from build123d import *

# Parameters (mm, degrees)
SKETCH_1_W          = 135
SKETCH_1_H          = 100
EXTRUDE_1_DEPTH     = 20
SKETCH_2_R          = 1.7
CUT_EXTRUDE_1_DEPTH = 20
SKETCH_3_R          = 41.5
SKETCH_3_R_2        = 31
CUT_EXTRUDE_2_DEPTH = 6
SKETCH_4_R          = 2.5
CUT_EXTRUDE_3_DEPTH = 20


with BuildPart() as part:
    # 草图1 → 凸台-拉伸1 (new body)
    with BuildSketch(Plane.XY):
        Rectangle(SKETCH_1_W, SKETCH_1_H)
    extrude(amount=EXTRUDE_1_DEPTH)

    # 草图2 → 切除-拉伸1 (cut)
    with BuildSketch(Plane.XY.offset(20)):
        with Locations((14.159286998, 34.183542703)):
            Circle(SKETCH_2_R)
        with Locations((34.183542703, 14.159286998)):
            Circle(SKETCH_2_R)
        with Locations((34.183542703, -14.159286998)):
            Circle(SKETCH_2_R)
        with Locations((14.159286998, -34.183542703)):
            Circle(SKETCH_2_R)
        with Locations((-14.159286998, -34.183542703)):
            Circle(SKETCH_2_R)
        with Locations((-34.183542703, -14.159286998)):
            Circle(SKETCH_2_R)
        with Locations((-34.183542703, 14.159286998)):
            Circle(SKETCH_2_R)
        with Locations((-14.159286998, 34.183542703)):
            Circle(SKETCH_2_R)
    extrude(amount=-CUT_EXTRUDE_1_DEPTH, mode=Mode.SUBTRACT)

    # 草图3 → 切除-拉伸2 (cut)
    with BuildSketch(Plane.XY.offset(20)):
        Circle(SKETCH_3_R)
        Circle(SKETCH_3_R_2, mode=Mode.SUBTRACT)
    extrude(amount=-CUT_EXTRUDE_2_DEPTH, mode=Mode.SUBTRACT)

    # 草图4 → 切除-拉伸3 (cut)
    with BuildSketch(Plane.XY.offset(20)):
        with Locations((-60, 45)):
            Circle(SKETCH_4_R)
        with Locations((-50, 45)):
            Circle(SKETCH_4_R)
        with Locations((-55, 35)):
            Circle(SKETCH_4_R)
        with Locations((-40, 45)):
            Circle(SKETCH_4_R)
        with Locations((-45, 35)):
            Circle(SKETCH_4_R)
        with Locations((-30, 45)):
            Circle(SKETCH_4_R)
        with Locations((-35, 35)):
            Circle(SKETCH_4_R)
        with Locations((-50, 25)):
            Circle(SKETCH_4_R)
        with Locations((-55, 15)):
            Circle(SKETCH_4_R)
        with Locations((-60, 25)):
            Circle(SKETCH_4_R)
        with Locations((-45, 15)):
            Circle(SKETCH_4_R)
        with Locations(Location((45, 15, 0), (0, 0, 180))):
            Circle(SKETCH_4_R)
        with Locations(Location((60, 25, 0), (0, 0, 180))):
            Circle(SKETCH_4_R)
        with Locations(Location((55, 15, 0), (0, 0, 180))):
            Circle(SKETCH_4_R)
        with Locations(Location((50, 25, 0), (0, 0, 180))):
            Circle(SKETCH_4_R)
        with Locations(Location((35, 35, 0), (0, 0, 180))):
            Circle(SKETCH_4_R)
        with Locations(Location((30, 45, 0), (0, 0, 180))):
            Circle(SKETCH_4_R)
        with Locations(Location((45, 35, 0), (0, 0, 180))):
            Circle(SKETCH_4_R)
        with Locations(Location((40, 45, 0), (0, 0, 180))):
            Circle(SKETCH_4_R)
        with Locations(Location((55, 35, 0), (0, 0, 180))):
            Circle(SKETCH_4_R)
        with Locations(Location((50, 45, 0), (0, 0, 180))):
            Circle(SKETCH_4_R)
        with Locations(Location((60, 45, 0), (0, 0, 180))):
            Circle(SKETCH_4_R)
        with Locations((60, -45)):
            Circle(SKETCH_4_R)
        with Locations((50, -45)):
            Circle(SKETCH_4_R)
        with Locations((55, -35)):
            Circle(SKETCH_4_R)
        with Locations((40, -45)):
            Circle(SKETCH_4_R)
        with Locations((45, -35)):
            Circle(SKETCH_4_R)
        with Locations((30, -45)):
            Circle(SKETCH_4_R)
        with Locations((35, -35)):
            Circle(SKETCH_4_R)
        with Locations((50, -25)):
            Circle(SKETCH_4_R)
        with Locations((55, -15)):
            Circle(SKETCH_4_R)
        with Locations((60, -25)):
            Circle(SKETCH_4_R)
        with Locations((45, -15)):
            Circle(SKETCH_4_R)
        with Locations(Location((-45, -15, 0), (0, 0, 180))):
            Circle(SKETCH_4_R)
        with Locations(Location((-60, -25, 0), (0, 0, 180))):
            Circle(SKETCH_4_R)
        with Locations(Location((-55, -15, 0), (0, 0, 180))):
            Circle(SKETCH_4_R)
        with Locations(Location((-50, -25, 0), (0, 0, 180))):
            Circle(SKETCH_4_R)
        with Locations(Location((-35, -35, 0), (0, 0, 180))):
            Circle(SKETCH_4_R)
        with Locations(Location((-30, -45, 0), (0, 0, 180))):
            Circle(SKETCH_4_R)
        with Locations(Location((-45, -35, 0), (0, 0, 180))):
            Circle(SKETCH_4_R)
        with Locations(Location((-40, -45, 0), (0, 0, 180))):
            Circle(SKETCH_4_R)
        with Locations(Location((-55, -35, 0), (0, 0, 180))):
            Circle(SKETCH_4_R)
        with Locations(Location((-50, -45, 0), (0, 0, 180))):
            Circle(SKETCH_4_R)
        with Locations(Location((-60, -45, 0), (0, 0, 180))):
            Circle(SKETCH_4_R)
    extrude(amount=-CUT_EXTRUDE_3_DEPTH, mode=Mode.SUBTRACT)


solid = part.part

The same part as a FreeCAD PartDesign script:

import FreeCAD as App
import Part
import Sketcher
Q = App.Units.Quantity

doc = App.newDocument("Part")
body = doc.addObject("PartDesign::Body", "Body")

sketch1 = body.newObject("Sketcher::SketchObject", "Sketch")
sketch1.AttachmentSupport = (doc.getObject("XY_Plane"), [""])
sketch1.MapMode = "FlatFace"
sketch1.addGeometry([
    Part.LineSegment(App.Vector(-67.5, 50, 0), App.Vector(-67.5, -50, 0)),
    Part.LineSegment(App.Vector(-67.5, -50, 0), App.Vector(67.5, -50, 0)),
    Part.LineSegment(App.Vector(67.5, -50, 0), App.Vector(67.5, 50, 0)),
    Part.LineSegment(App.Vector(67.5, 50, 0), App.Vector(-67.5, 50, 0)),
], False)
sketch1.addConstraint([
    Sketcher.Constraint("Coincident", 0, 2, 1, 1),
    Sketcher.Constraint("Coincident", 1, 2, 2, 1),
    Sketcher.Constraint("Coincident", 2, 2, 3, 1),
    Sketcher.Constraint("Coincident", 3, 2, 0, 1),
    Sketcher.Constraint("Vertical", 0),
    Sketcher.Constraint("Horizontal", 1),
    Sketcher.Constraint("Vertical", 2),
    Sketcher.Constraint("Horizontal", 3),
    Sketcher.Constraint("Symmetric", 0, 2, 2, 2, -1, 1),
    Sketcher.Constraint("DistanceX", 1, 1, 1, 2, Q("135 mm")),
    Sketcher.Constraint("DistanceY", 0, 2, 0, 1, Q("100 mm")),
])
pad1 = body.newObject("PartDesign::Pad", "Pad")
pad1.Profile = sketch1
pad1.Length = 20

sketch2 = body.newObject("Sketcher::SketchObject", "Sketch001")
sketch2.AttachmentSupport = (doc.getObject("XY_Plane"), [""])
sketch2.MapMode = "FlatFace"
sketch2.AttachmentOffset = App.Placement(App.Vector(0, 0, 20), App.Rotation())
sketch2.addGeometry([
    Part.Circle(App.Vector(14.159287, 34.183543, 0), App.Vector(0, 0, 1), 1.7),
    Part.Circle(App.Vector(34.183543, 14.159287, 0), App.Vector(0, 0, 1), 1.7),
    Part.Circle(App.Vector(34.183543, -14.159287, 0), App.Vector(0, 0, 1), 1.7),
    Part.Circle(App.Vector(14.159287, -34.183543, 0), App.Vector(0, 0, 1), 1.7),
    Part.Circle(App.Vector(-14.159287, -34.183543, 0), App.Vector(0, 0, 1), 1.7),
    Part.Circle(App.Vector(-34.183543, -14.159287, 0), App.Vector(0, 0, 1), 1.7),
    Part.Circle(App.Vector(-34.183543, 14.159287, 0), App.Vector(0, 0, 1), 1.7),
    Part.Circle(App.Vector(-14.159287, 34.183543, 0), App.Vector(0, 0, 1), 1.7),
], False)
sketch2.addConstraint([
    Sketcher.Constraint("Equal", 0, 1),
    Sketcher.Constraint("Equal", 1, 2),
    Sketcher.Constraint("Equal", 2, 3),
    Sketcher.Constraint("Equal", 3, 4),
    Sketcher.Constraint("Equal", 4, 5),
    Sketcher.Constraint("Equal", 5, 6),
    Sketcher.Constraint("Equal", 6, 7),
    Sketcher.Constraint("Symmetric", 0, 3, 4, 3, -1, 1),
    Sketcher.Constraint("Symmetric", 1, 3, 5, 3, -1, 1),
    Sketcher.Constraint("Symmetric", 2, 3, 6, 3, -1, 1),
    Sketcher.Constraint("Symmetric", 3, 3, 7, 3, -1, 1),
    Sketcher.Constraint("Symmetric", 3, 3, 4, 3, -2),
    Sketcher.Constraint("Symmetric", 2, 3, 5, 3, -2),
    Sketcher.Constraint("Diameter", 0, Q("3.4 mm")),
    Sketcher.Constraint("DistanceY", 2, 3, 0, 3, Q("48.34283 mm")),
    Sketcher.Constraint("DistanceX", 4, 3, 2, 3, Q("48.34283 mm")),
    Sketcher.Constraint("DistanceX", -1, 1, 0, 3, Q("14.159287 mm")),
    Sketcher.Constraint("DistanceY", -1, 1, 0, 3, Q("34.183543 mm")),
])
pocket1 = body.newObject("PartDesign::Pocket", "Pocket")
pocket1.Profile = sketch2
pocket1.Length = 20

sketch3 = body.newObject("Sketcher::SketchObject", "Sketch002")
sketch3.AttachmentSupport = (doc.getObject("XY_Plane"), [""])
sketch3.MapMode = "FlatFace"
sketch3.AttachmentOffset = App.Placement(App.Vector(0, 0, 20), App.Rotation())
sketch3.addGeometry([
    Part.Circle(App.Vector(0, 0, 0), App.Vector(0, 0, 1), 41.5),
    Part.Circle(App.Vector(0, 0, 0), App.Vector(0, 0, 1), 31),
], False)
sketch3.addConstraint([
    Sketcher.Constraint("Coincident", 0, 3, -1, 1),
    Sketcher.Constraint("Coincident", 1, 3, -1, 1),
    Sketcher.Constraint("Diameter", 0, Q("83 mm")),
    Sketcher.Constraint("Diameter", 1, Q("62 mm")),
])
pocket2 = body.newObject("PartDesign::Pocket", "Pocket001")
pocket2.Profile = sketch3
pocket2.Length = 6

sketch4 = body.newObject("Sketcher::SketchObject", "Sketch003")
sketch4.AttachmentSupport = (doc.getObject("XY_Plane"), [""])
sketch4.MapMode = "FlatFace"
sketch4.AttachmentOffset = App.Placement(App.Vector(0, 0, 20), App.Rotation())
sketch4.addGeometry([
    Part.Circle(App.Vector(-60, 45, 0), App.Vector(0, 0, 1), 2.5),
    Part.Circle(App.Vector(-50, 45, 0), App.Vector(0, 0, 1), 2.5),
    Part.Circle(App.Vector(-55, 35, 0), App.Vector(0, 0, 1), 2.5),
    Part.Circle(App.Vector(-40, 45, 0), App.Vector(0, 0, 1), 2.5),
    Part.Circle(App.Vector(-45, 35, 0), App.Vector(0, 0, 1), 2.5),
    Part.Circle(App.Vector(-30, 45, 0), App.Vector(0, 0, 1), 2.5),
    Part.Circle(App.Vector(-35, 35, 0), App.Vector(0, 0, 1), 2.5),
    Part.Circle(App.Vector(-50, 25, 0), App.Vector(0, 0, 1), 2.5),
    Part.Circle(App.Vector(-55, 15, 0), App.Vector(0, 0, 1), 2.5),
    Part.Circle(App.Vector(-60, 25, 0), App.Vector(0, 0, 1), 2.5),
    Part.Circle(App.Vector(-45, 15, 0), App.Vector(0, 0, 1), 2.5),
    Part.Circle(App.Vector(45, 15, 0), App.Vector(0, 0, 1), 2.5),
    Part.Circle(App.Vector(60, 25, 0), App.Vector(0, 0, 1), 2.5),
    Part.Circle(App.Vector(55, 15, 0), App.Vector(0, 0, 1), 2.5),
    Part.Circle(App.Vector(50, 25, 0), App.Vector(0, 0, 1), 2.5),
    Part.Circle(App.Vector(35, 35, 0), App.Vector(0, 0, 1), 2.5),
    Part.Circle(App.Vector(30, 45, 0), App.Vector(0, 0, 1), 2.5),
    Part.Circle(App.Vector(45, 35, 0), App.Vector(0, 0, 1), 2.5),
    Part.Circle(App.Vector(40, 45, 0), App.Vector(0, 0, 1), 2.5),
    Part.Circle(App.Vector(55, 35, 0), App.Vector(0, 0, 1), 2.5),
    Part.Circle(App.Vector(50, 45, 0), App.Vector(0, 0, 1), 2.5),
    Part.Circle(App.Vector(60, 45, 0), App.Vector(0, 0, 1), 2.5),
    Part.Circle(App.Vector(60, -45, 0), App.Vector(0, 0, 1), 2.5),
    Part.Circle(App.Vector(50, -45, 0), App.Vector(0, 0, 1), 2.5),
    Part.Circle(App.Vector(55, -35, 0), App.Vector(0, 0, 1), 2.5),
    Part.Circle(App.Vector(40, -45, 0), App.Vector(0, 0, 1), 2.5),
    Part.Circle(App.Vector(45, -35, 0), App.Vector(0, 0, 1), 2.5),
    Part.Circle(App.Vector(30, -45, 0), App.Vector(0, 0, 1), 2.5),
    Part.Circle(App.Vector(35, -35, 0), App.Vector(0, 0, 1), 2.5),
    Part.Circle(App.Vector(50, -25, 0), App.Vector(0, 0, 1), 2.5),
    Part.Circle(App.Vector(55, -15, 0), App.Vector(0, 0, 1), 2.5),
    Part.Circle(App.Vector(60, -25, 0), App.Vector(0, 0, 1), 2.5),
    Part.Circle(App.Vector(45, -15, 0), App.Vector(0, 0, 1), 2.5),
    Part.Circle(App.Vector(-45, -15, 0), App.Vector(0, 0, 1), 2.5),
    Part.Circle(App.Vector(-60, -25, 0), App.Vector(0, 0, 1), 2.5),
    Part.Circle(App.Vector(-55, -15, 0), App.Vector(0, 0, 1), 2.5),
    Part.Circle(App.Vector(-50, -25, 0), App.Vector(0, 0, 1), 2.5),
    Part.Circle(App.Vector(-35, -35, 0), App.Vector(0, 0, 1), 2.5),
    Part.Circle(App.Vector(-30, -45, 0), App.Vector(0, 0, 1), 2.5),
    Part.Circle(App.Vector(-45, -35, 0), App.Vector(0, 0, 1), 2.5),
    Part.Circle(App.Vector(-40, -45, 0), App.Vector(0, 0, 1), 2.5),
    Part.Circle(App.Vector(-55, -35, 0), App.Vector(0, 0, 1), 2.5),
    Part.Circle(App.Vector(-50, -45, 0), App.Vector(0, 0, 1), 2.5),
    Part.Circle(App.Vector(-60, -45, 0), App.Vector(0, 0, 1), 2.5),
], False)
sketch4.addConstraint([
    Sketcher.Constraint("Equal", 0, 1),
    Sketcher.Constraint("Equal", 1, 2),
    Sketcher.Constraint("Equal", 2, 3),
    Sketcher.Constraint("Equal", 3, 4),
    Sketcher.Constraint("Equal", 4, 5),
    Sketcher.Constraint("Equal", 5, 6),
    Sketcher.Constraint("Equal", 6, 7),
    Sketcher.Constraint("Equal", 7, 8),
    Sketcher.Constraint("Equal", 8, 9),
    Sketcher.Constraint("Equal", 9, 10),
    Sketcher.Constraint("Equal", 10, 11),
    Sketcher.Constraint("Equal", 11, 12),
    Sketcher.Constraint("Equal", 12, 13),
    Sketcher.Constraint("Equal", 13, 14),
    Sketcher.Constraint("Equal", 14, 15),
    Sketcher.Constraint("Equal", 15, 16),
    Sketcher.Constraint("Equal", 16, 17),
    Sketcher.Constraint("Equal", 17, 18),
    Sketcher.Constraint("Equal", 18, 19),
    Sketcher.Constraint("Equal", 19, 20),
    Sketcher.Constraint("Equal", 20, 21),
    Sketcher.Constraint("Equal", 21, 22),
    Sketcher.Constraint("Equal", 22, 23),
    Sketcher.Constraint("Equal", 23, 24),
    Sketcher.Constraint("Equal", 24, 25),
    Sketcher.Constraint("Equal", 25, 26),
    Sketcher.Constraint("Equal", 26, 27),
    Sketcher.Constraint("Equal", 27, 28),
    Sketcher.Constraint("Equal", 28, 29),
    Sketcher.Constraint("Equal", 29, 30),
    Sketcher.Constraint("Equal", 30, 31),
    Sketcher.Constraint("Equal", 31, 32),
    Sketcher.Constraint("Equal", 32, 33),
    Sketcher.Constraint("Equal", 33, 34),
    Sketcher.Constraint("Equal", 34, 35),
    Sketcher.Constraint("Equal", 35, 36),
    Sketcher.Constraint("Equal", 36, 37),
    Sketcher.Constraint("Equal", 37, 38),
    Sketcher.Constraint("Equal", 38, 39),
    Sketcher.Constraint("Equal", 39, 40),
    Sketcher.Constraint("Equal", 40, 41),
    Sketcher.Constraint("Equal", 41, 42),
    Sketcher.Constraint("Equal", 42, 43),
    Sketcher.Constraint("Symmetric", 0, 3, 22, 3, -1, 1),
    Sketcher.Constraint("Symmetric", 1, 3, 23, 3, -1, 1),
    Sketcher.Constraint("Symmetric", 2, 3, 24, 3, -1, 1),
    Sketcher.Constraint("Symmetric", 3, 3, 25, 3, -1, 1),
    Sketcher.Constraint("Symmetric", 4, 3, 26, 3, -1, 1),
    Sketcher.Constraint("Symmetric", 5, 3, 27, 3, -1, 1),
    Sketcher.Constraint("Symmetric", 6, 3, 28, 3, -1, 1),
    Sketcher.Constraint("Symmetric", 7, 3, 29, 3, -1, 1),
    Sketcher.Constraint("Symmetric", 8, 3, 30, 3, -1, 1),
    Sketcher.Constraint("Symmetric", 9, 3, 31, 3, -1, 1),
    Sketcher.Constraint("Symmetric", 10, 3, 32, 3, -1, 1),
    Sketcher.Constraint("Symmetric", 11, 3, 33, 3, -1, 1),
    Sketcher.Constraint("Symmetric", 12, 3, 34, 3, -1, 1),
    Sketcher.Constraint("Symmetric", 13, 3, 35, 3, -1, 1),
    Sketcher.Constraint("Symmetric", 14, 3, 36, 3, -1, 1),
    Sketcher.Constraint("Symmetric", 15, 3, 37, 3, -1, 1),
    Sketcher.Constraint("Symmetric", 16, 3, 38, 3, -1, 1),
    Sketcher.Constraint("Symmetric", 17, 3, 39, 3, -1, 1),
    Sketcher.Constraint("Symmetric", 18, 3, 40, 3, -1, 1),
    Sketcher.Constraint("Symmetric", 19, 3, 41, 3, -1, 1),
    Sketcher.Constraint("Symmetric", 20, 3, 42, 3, -1, 1),
    Sketcher.Constraint("Symmetric", 21, 3, 43, 3, -1, 1),
    Sketcher.Constraint("Symmetric", 10, 3, 11, 3, -2),
    Sketcher.Constraint("Symmetric", 9, 3, 12, 3, -2),
    Sketcher.Constraint("Symmetric", 8, 3, 13, 3, -2),
    Sketcher.Constraint("Symmetric", 7, 3, 14, 3, -2),
    Sketcher.Constraint("Symmetric", 6, 3, 15, 3, -2),
    Sketcher.Constraint("Symmetric", 5, 3, 16, 3, -2),
    Sketcher.Constraint("Symmetric", 4, 3, 17, 3, -2),
    Sketcher.Constraint("Symmetric", 3, 3, 18, 3, -2),
    Sketcher.Constraint("Symmetric", 2, 3, 19, 3, -2),
    Sketcher.Constraint("Symmetric", 1, 3, 20, 3, -2),
    Sketcher.Constraint("Symmetric", 0, 3, 21, 3, -2),
    Sketcher.Constraint("Horizontal", 0, 3, 1, 3),
    Sketcher.Constraint("Horizontal", 1, 3, 3, 3),
    Sketcher.Constraint("Horizontal", 2, 3, 4, 3),
    Sketcher.Constraint("Horizontal", 3, 3, 5, 3),
    Sketcher.Constraint("Horizontal", 4, 3, 6, 3),
    Sketcher.Constraint("Horizontal", 7, 3, 9, 3),
    Sketcher.Constraint("Horizontal", 8, 3, 10, 3),
    Sketcher.Constraint("Vertical", 1, 3, 7, 3),
    Sketcher.Constraint("Vertical", 2, 3, 8, 3),
    Sketcher.Constraint("Vertical", 0, 3, 9, 3),
    Sketcher.Constraint("Vertical", 4, 3, 10, 3),
    Sketcher.Constraint("Diameter", 0, Q("5 mm")),
    Sketcher.Constraint("DistanceX", 0, 3, -1, 1, Q("60 mm")),
    Sketcher.Constraint("DistanceY", -1, 1, 0, 3, Q("45 mm")),
    Sketcher.Constraint("DistanceX", 1, 3, -1, 1, Q("50 mm")),
    Sketcher.Constraint("DistanceX", 2, 3, -1, 1, Q("55 mm")),
    Sketcher.Constraint("DistanceY", -1, 1, 2, 3, Q("35 mm")),
    Sketcher.Constraint("DistanceX", 3, 3, -1, 1, Q("40 mm")),
    Sketcher.Constraint("DistanceX", 4, 3, -1, 1, Q("45 mm")),
    Sketcher.Constraint("DistanceX", 5, 3, -1, 1, Q("30 mm")),
    Sketcher.Constraint("DistanceX", 6, 3, -1, 1, Q("35 mm")),
    Sketcher.Constraint("DistanceY", -1, 1, 7, 3, Q("25 mm")),
    Sketcher.Constraint("DistanceY", -1, 1, 8, 3, Q("15 mm")),
])
pocket3 = body.newObject("PartDesign::Pocket", "Pocket002")
pocket3.Profile = sketch4
pocket3.Length = 20

doc.recompute()
